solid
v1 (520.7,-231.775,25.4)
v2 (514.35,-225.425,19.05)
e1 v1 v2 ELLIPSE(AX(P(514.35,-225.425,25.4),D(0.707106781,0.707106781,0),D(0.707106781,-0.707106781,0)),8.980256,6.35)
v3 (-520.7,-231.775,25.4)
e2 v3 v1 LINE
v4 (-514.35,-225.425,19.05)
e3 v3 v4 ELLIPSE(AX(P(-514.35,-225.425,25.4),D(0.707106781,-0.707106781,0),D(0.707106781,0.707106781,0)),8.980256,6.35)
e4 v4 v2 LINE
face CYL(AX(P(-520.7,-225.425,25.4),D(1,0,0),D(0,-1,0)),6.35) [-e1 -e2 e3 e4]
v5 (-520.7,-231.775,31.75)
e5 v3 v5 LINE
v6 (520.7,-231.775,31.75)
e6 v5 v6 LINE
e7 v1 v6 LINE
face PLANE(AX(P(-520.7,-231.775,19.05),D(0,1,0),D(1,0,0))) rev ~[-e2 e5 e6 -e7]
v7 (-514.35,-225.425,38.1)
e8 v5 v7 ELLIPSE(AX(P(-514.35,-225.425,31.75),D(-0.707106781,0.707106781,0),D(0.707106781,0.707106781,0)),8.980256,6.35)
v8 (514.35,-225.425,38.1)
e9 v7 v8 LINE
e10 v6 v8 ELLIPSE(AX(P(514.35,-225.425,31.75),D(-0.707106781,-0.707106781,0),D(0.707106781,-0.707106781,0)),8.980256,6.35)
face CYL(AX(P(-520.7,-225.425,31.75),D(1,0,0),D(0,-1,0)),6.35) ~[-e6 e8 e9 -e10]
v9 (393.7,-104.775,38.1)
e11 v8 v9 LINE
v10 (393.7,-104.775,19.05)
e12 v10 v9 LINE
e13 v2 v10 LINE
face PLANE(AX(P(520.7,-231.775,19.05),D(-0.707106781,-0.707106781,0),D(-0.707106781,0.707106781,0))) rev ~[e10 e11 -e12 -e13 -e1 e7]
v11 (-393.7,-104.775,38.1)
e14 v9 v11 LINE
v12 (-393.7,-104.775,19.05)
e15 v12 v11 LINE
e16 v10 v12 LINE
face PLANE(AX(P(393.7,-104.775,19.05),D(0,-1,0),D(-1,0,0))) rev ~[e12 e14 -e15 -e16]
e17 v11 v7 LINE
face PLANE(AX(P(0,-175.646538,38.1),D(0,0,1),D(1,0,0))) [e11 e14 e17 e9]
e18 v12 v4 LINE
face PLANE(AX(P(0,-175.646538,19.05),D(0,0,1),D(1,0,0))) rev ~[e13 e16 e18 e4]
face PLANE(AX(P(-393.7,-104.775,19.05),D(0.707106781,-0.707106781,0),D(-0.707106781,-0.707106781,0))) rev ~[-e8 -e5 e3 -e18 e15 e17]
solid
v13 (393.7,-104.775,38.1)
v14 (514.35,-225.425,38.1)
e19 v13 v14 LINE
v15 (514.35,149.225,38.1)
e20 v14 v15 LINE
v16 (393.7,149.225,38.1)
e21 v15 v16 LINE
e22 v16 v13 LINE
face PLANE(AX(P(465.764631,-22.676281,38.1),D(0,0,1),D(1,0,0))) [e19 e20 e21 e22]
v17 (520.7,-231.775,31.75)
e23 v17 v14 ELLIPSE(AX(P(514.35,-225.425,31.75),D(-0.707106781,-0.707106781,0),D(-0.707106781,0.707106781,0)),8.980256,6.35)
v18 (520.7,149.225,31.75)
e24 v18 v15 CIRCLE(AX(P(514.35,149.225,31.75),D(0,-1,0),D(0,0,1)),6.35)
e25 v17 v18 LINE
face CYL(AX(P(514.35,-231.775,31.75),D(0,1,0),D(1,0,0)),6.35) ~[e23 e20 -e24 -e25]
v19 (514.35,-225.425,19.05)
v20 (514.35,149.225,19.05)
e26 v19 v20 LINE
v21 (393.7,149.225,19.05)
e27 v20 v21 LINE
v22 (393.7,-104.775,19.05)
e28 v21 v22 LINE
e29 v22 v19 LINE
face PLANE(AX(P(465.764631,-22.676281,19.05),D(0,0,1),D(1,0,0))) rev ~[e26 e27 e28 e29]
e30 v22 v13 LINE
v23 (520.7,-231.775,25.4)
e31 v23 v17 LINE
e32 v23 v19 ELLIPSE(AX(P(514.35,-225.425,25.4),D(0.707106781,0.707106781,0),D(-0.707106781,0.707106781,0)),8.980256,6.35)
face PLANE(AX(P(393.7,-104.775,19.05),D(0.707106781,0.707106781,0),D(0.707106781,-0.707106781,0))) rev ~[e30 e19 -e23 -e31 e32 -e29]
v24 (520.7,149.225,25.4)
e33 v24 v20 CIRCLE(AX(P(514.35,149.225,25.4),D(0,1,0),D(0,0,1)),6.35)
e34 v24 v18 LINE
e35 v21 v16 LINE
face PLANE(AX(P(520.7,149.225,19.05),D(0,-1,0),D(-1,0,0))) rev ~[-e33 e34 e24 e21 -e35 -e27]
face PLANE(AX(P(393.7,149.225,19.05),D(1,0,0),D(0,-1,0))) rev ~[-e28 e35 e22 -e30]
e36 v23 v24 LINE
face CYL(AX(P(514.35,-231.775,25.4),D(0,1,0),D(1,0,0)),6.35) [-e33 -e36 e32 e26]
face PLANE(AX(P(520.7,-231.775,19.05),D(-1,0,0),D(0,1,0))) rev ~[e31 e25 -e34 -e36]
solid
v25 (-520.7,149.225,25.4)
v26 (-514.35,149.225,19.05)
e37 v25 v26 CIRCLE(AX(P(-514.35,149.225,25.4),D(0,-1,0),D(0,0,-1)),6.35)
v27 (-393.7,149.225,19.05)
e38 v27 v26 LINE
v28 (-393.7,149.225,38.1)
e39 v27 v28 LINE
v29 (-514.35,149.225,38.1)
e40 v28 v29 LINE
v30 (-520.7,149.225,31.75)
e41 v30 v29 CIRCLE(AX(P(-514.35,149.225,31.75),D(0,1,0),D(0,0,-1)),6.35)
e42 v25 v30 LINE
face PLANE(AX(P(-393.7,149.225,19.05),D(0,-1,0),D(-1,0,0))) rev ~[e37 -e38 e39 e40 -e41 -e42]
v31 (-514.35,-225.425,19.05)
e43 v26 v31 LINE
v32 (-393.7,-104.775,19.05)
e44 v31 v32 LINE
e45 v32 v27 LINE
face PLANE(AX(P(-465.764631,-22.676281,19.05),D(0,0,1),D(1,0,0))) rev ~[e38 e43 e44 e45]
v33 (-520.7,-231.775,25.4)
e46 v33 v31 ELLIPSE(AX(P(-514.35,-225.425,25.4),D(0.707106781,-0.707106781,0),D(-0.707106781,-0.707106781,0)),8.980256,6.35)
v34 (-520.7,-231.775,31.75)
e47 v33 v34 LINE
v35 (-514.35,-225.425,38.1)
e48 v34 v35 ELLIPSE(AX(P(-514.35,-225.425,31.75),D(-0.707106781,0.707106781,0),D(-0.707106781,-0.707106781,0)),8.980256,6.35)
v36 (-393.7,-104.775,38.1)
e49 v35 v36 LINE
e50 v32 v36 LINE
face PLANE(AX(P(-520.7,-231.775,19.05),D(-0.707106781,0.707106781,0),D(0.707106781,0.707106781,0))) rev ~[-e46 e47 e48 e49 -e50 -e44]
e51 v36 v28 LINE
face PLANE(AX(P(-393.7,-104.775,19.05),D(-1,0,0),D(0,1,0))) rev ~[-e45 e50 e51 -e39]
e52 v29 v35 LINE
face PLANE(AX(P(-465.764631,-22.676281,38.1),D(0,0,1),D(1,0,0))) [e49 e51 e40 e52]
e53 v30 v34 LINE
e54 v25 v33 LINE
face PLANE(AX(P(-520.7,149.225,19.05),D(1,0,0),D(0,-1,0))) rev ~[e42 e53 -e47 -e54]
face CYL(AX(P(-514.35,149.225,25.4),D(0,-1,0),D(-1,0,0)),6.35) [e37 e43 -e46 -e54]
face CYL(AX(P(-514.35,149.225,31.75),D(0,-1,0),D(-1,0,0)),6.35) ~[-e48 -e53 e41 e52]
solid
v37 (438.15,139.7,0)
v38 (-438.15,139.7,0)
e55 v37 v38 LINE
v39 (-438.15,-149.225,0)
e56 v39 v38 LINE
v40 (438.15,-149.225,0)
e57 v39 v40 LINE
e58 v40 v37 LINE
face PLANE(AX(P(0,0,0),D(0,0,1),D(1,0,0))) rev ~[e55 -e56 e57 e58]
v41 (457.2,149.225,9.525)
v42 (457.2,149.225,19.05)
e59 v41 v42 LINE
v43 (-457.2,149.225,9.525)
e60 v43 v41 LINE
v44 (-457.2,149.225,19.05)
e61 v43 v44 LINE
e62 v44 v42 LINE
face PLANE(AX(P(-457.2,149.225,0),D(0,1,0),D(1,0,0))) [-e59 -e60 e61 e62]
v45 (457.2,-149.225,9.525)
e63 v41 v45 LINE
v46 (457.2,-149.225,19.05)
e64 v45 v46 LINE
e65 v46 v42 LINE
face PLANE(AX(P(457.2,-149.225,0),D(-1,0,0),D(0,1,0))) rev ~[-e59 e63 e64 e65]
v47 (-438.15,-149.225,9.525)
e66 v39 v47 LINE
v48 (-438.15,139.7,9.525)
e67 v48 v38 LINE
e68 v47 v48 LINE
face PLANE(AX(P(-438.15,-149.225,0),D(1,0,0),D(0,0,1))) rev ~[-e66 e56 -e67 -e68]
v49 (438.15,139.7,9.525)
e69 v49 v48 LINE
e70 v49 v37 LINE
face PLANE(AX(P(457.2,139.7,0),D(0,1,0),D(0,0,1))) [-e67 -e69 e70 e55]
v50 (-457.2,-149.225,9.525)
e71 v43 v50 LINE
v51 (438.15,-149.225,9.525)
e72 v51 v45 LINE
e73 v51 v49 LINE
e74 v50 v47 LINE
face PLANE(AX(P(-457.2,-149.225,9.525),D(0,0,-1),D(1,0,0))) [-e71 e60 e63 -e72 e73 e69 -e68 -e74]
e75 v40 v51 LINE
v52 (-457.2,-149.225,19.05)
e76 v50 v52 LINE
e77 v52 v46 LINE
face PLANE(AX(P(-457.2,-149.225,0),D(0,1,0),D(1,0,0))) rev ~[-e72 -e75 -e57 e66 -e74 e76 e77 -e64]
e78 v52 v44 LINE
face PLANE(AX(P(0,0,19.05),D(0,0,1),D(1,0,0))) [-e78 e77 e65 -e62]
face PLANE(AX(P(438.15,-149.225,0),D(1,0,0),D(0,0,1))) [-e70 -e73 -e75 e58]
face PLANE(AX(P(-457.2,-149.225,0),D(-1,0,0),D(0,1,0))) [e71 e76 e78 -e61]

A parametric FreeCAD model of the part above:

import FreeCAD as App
import Part
import Sketcher
Q = App.Units.Quantity


def edges_at(feature, points):
    """Names of the edges that pass closest to the given points."""
    edges = feature.Shape.Edges
    near = lambda p: min(range(len(edges)), key=lambda i: edges[i].distToShape(Part.Vertex(*p))[0])
    return sorted({f"Edge{near(p) + 1}" for p in points})

doc = App.newDocument("Part")
body = doc.addObject("PartDesign::Body", "Body")

sketch1 = body.newObject("Sketcher::SketchObject", "Sketch")
sketch1.AttachmentSupport = (doc.getObject("XY_Plane"), [""])
sketch1.MapMode = "FlatFace"
sketch1.addGeometry([
    Part.LineSegment(App.Vector(-457.2, 149.225, 0), App.Vector(-457.2, -149.225, 0)),
    Part.LineSegment(App.Vector(-457.2, -149.225, 0), App.Vector(457.2, -149.225, 0)),
    Part.LineSegment(App.Vector(457.2, -149.225, 0), App.Vector(457.2, 149.225, 0)),
    Part.LineSegment(App.Vector(457.2, 149.225, 0), App.Vector(-457.2, 149.225, 0)),
], False)
sketch1.addConstraint([
    Sketcher.Constraint("Coincident", 0, 2, 1, 1),
    Sketcher.Constraint("Coincident", 1, 2, 2, 1),
    Sketcher.Constraint("Coincident", 2, 2, 3, 1),
    Sketcher.Constraint("Coincident", 3, 2, 0, 1),
    Sketcher.Constraint("Vertical", 0),
    Sketcher.Constraint("Horizontal", 1),
    Sketcher.Constraint("Vertical", 2),
    Sketcher.Constraint("Horizontal", 3),
    Sketcher.Constraint("Symmetric", 0, 2, 2, 2, -1, 1),
    Sketcher.Constraint("DistanceX", 1, 1, 1, 2, Q("36 in")),
    Sketcher.Constraint("DistanceY", 0, 2, 0, 1, Q("11.75 in")),
])
pad1 = body.newObject("PartDesign::Pad", "Pad")
pad1.Profile = sketch1
pad1.Length = Q("0.75 in")

sketch2 = body.newObject("Sketcher::SketchObject", "Sketch001")
sketch2.AttachmentSupport = (doc.getObject("YZ_Plane"), [""])
sketch2.MapMode = "FlatFace"
sketch2.AttachmentOffset = App.Placement(App.Vector(0, 0, 18 * 25.4), App.Rotation())
sketch2.addGeometry([
    Part.LineSegment(App.Vector(139.7, 9.525, 0), App.Vector(139.7, 0, 0)),
    Part.LineSegment(App.Vector(139.7, 0, 0), App.Vector(149.225, 0, 0)),
    Part.LineSegment(App.Vector(149.225, 0, 0), App.Vector(149.225, 9.525, 0)),
    Part.LineSegment(App.Vector(149.225, 9.525, 0), App.Vector(139.7, 9.525, 0)),
], False)
sketch2.addConstraint([
    Sketcher.Constraint("Coincident", 0, 2, 1, 1),
    Sketcher.Constraint("Coincident", 1, 2, 2, 1),
    Sketcher.Constraint("Coincident", 2, 2, 3, 1),
    Sketcher.Constraint("Coincident", 3, 2, 0, 1),
    Sketcher.Constraint("Vertical", 0),
    Sketcher.Constraint("Horizontal", 1),
    Sketcher.Constraint("Vertical", 2),
    Sketcher.Constraint("Horizontal", 3),
    Sketcher.Constraint("PointOnObject", 0, 2, -1),
    Sketcher.Constraint("Equal", 3, 0),
    Sketcher.Constraint("DistanceX", -1, 1, 0, 2, Q("5.5 in")),
    Sketcher.Constraint("DistanceX", 1, 1, 1, 2, Q("0.375 in")),
])
pocket1 = body.newObject("PartDesign::Pocket", "Pocket")
pocket1.Profile = sketch2
pocket1.Type = "ThroughAll"

sketch3 = body.newObject("Sketcher::SketchObject", "Sketch002")
sketch3.AttachmentSupport = (doc.getObject("XZ_Plane"), [""])
sketch3.MapMode = "FlatFace"
sketch3.AttachmentOffset = App.Placement(App.Vector(0, 0, 5.875 * 25.4), App.Rotation())
sketch3.addGeometry([
    Part.LineSegment(App.Vector(-457.2, 9.525, 0), App.Vector(-457.2, 0, 0)),
    Part.LineSegment(App.Vector(-457.2, 0, 0), App.Vector(-438.15, 0, 0)),
    Part.LineSegment(App.Vector(-438.15, 0, 0), App.Vector(-438.15, 9.525, 0)),
    Part.LineSegment(App.Vector(-438.15, 9.525, 0), App.Vector(-457.2, 9.525, 0)),
    Part.LineSegment(App.Vector(438.15, 9.525, 0), App.Vector(438.15, 0, 0)),
    Part.LineSegment(App.Vector(438.15, 0, 0), App.Vector(457.2, 0, 0)),
    Part.LineSegment(App.Vector(457.2, 0, 0), App.Vector(457.2, 9.525, 0)),
    Part.LineSegment(App.Vector(457.2, 9.525, 0), App.Vector(438.15, 9.525, 0)),
], False)
sketch3.addConstraint([
    Sketcher.Constraint("Coincident", 0, 2, 1, 1),
    Sketcher.Constraint("Coincident", 1, 2, 2, 1),
    Sketcher.Constraint("Coincident", 2, 2, 3, 1),
    Sketcher.Constraint("Coincident", 3, 2, 0, 1),
    Sketcher.Constraint("Coincident", 4, 2, 5, 1),
    Sketcher.Constraint("Coincident", 5, 2, 6, 1),
    Sketcher.Constraint("Coincident", 6, 2, 7, 1),
    Sketcher.Constraint("Coincident", 7, 2, 4, 1),
    Sketcher.Constraint("Vertical", 0),
    Sketcher.Constraint("Horizontal", 1),
    Sketcher.Constraint("Vertical", 2),
    Sketcher.Constraint("Horizontal", 3),
    Sketcher.Constraint("Vertical", 4),
    Sketcher.Constraint("Horizontal", 5),
    Sketcher.Constraint("Vertical", 6),
    Sketcher.Constraint("Horizontal", 7),
    Sketcher.Constraint("Symmetric", 1, 2, 4, 2, -1, 1),
    Sketcher.Constraint("Symmetric", 0, 2, 5, 2, -2),
    Sketcher.Constraint("Horizontal", 3, 2, 6, 2),
    Sketcher.Constraint("DistanceX", 0, 2, -1, 1, Q("18 in")),
    Sketcher.Constraint("DistanceX", 1, 1, 1, 2, Q("0.75 in")),
    Sketcher.Constraint("DistanceY", 0, 2, 0, 1, Q("0.375 in")),
])
pocket2 = body.newObject("PartDesign::Pocket", "Pocket001")
pocket2.Profile = sketch3
pocket2.Type = "ThroughAll"
body2 = doc.addObject("PartDesign::Body", "Body001")

sketch4 = body2.newObject("Sketcher::SketchObject", "Sketch003")
sketch4.AttachmentSupport = (doc.getObject("XY_Plane001"), [""])
sketch4.MapMode = "FlatFace"
sketch4.AttachmentOffset = App.Placement(App.Vector(0, 0, 0.75 * 25.4), App.Rotation())
sketch4.addGeometry([
    Part.LineSegment(App.Vector(393.7, -104.775, 0), App.Vector(-393.7, -104.775, 0)),
    Part.LineSegment(App.Vector(-393.7, -104.775, 0), App.Vector(-520.7, -231.775, 0)),
    Part.LineSegment(App.Vector(-520.7, -231.775, 0), App.Vector(520.7, -231.775, 0)),
    Part.LineSegment(App.Vector(520.7, -231.775, 0), App.Vector(393.7, -104.775, 0)),
], False)
sketch4.addConstraint([
    Sketcher.Constraint("Coincident", 0, 2, 1, 1),
    Sketcher.Constraint("Coincident", 1, 2, 2, 1),
    Sketcher.Constraint("Coincident", 2, 2, 3, 1),
    Sketcher.Constraint("Coincident", 3, 2, 0, 1),
    Sketcher.Constraint("Horizontal", 0),
    Sketcher.Constraint("Horizontal", 2),
    Sketcher.Constraint("Perpendicular", 1, 3),
    Sketcher.Constraint("Equal", 1, 3),
    Sketcher.Constraint("DistanceX", 0, 2, 0, 1, Q("31 in")),
    Sketcher.Constraint("DistanceX", 2, 1, 2, 2, Q("41 in")),
    Sketcher.Constraint("DistanceX", 0, 2, -1, 1, Q("15.5 in")),
    Sketcher.Constraint("DistanceY", 0, 2, -1, 1, Q("4.125 in")),
])
pad2 = body2.newObject("PartDesign::Pad", "Pad001")
pad2.Profile = sketch4
pad2.Length = Q("0.75 in")
doc.recompute()

fillet = body2.newObject("PartDesign::Fillet", "Fillet")
fillet.Base = (pad2, edges_at(pad2, [(0, -231.775, 38.1), (0, -231.775, 19.05)]))
fillet.Radius = Q("0.25 in")
body3 = doc.addObject("PartDesign::Body", "Body002")

sketch5 = body3.newObject("Sketcher::SketchObject", "Sketch004")
sketch5.AttachmentSupport = (doc.getObject("XY_Plane002"), [""])
sketch5.MapMode = "FlatFace"
sketch5.AttachmentOffset = App.Placement(App.Vector(0, 0, 0.75 * 25.4), App.Rotation())
sketch5.addGeometry([
    Part.LineSegment(App.Vector(-393.7, 149.225, 0), App.Vector(-520.7, 149.225, 0)),
    Part.LineSegment(App.Vector(-520.7, 149.225, 0), App.Vector(-520.7, -231.775, 0)),
    Part.LineSegment(App.Vector(-520.7, -231.775, 0), App.Vector(-393.7, -104.775, 0)),
    Part.LineSegment(App.Vector(-393.7, -104.775, 0), App.Vector(-393.7, 149.225, 0)),
], False)
sketch5.addConstraint([
    Sketcher.Constraint("Coincident", 0, 2, 1, 1),
    Sketcher.Constraint("Coincident", 1, 2, 2, 1),
    Sketcher.Constraint("Coincident", 2, 2, 3, 1),
    Sketcher.Constraint("Coincident", 3, 2, 0, 1),
    Sketcher.Constraint("Horizontal", 0),
    Sketcher.Constraint("Vertical", 1),
    Sketcher.Constraint("Vertical", 3),
    Sketcher.Constraint("DistanceX", 0, 2, 0, 1, Q("5 in")),
    Sketcher.Constraint("DistanceY", 1, 2, 1, 1, Q("15 in")),
    Sketcher.Constraint("DistanceY", 3, 1, 3, 2, Q("10 in")),
    Sketcher.Constraint("DistanceX", 0, 2, -1, 1, Q("20.5 in")),
    Sketcher.Constraint("DistanceY", -1, 1, 0, 2, Q("5.875 in")),
])
pad3 = body3.newObject("PartDesign::Pad", "Pad002")
pad3.Profile = sketch5
pad3.Length = Q("0.75 in")
doc.recompute()

fillet2 = body3.newObject("PartDesign::Fillet", "Fillet001")
fillet2.Base = (pad3, edges_at(pad3, [(-520.7, -41.275, 38.1), (-520.7, -41.275, 19.05)]))
fillet2.Radius = Q("0.25 in")
body4 = doc.addObject("PartDesign::Body", "Body003")

sketch6 = body4.newObject("Sketcher::SketchObject", "Sketch005")
sketch6.AttachmentSupport = (doc.getObject("XY_Plane003"), [""])
sketch6.MapMode = "FlatFace"
sketch6.AttachmentOffset = App.Placement(App.Vector(0, 0, 0.75 * 25.4), App.Rotation())
sketch6.addGeometry([
    Part.LineSegment(App.Vector(520.7, 149.225, 0), App.Vector(393.7, 149.225, 0)),
    Part.LineSegment(App.Vector(393.7, 149.225, 0), App.Vector(393.7, -104.775, 0)),
    Part.LineSegment(App.Vector(393.7, -104.775, 0), App.Vector(520.7, -231.775, 0)),
    Part.LineSegment(App.Vector(520.7, -231.775, 0), App.Vector(520.7, 149.225, 0)),
], False)
sketch6.addConstraint([
    Sketcher.Constraint("Coincident", 0, 2, 1, 1),
    Sketcher.Constraint("Coincident", 1, 2, 2, 1),
    Sketcher.Constraint("Coincident", 2, 2, 3, 1),
    Sketcher.Constraint("Coincident", 3, 2, 0, 1),
    Sketcher.Constraint("Horizontal", 0),
    Sketcher.Constraint("Vertical", 1),
    Sketcher.Constraint("Vertical", 3),
    Sketcher.Constraint("DistanceX", 0, 2, 0, 1, Q("5 in")),
    Sketcher.Constraint("DistanceY", 1, 2, 1, 1, Q("10 in")),
    Sketcher.Constraint("DistanceY", 3, 1, 3, 2, Q("15 in")),
    Sketcher.Constraint("DistanceX", -1, 1, 0, 2, Q("15.5 in")),
    Sketcher.Constraint("DistanceY", -1, 1, 0, 2, Q("5.875 in")),
])
pad4 = body4.newObject("PartDesign::Pad", "Pad003")
pad4.Profile = sketch6
pad4.Length = Q("0.75 in")
doc.recompute()

fillet3 = body4.newObject("PartDesign::Fillet", "Fillet002")
fillet3.Base = (pad4, edges_at(pad4, [(520.7, -41.275, 19.05), (520.7, -41.275, 38.1)]))
fillet3.Radius = Q("0.25 in")

doc.recompute()
